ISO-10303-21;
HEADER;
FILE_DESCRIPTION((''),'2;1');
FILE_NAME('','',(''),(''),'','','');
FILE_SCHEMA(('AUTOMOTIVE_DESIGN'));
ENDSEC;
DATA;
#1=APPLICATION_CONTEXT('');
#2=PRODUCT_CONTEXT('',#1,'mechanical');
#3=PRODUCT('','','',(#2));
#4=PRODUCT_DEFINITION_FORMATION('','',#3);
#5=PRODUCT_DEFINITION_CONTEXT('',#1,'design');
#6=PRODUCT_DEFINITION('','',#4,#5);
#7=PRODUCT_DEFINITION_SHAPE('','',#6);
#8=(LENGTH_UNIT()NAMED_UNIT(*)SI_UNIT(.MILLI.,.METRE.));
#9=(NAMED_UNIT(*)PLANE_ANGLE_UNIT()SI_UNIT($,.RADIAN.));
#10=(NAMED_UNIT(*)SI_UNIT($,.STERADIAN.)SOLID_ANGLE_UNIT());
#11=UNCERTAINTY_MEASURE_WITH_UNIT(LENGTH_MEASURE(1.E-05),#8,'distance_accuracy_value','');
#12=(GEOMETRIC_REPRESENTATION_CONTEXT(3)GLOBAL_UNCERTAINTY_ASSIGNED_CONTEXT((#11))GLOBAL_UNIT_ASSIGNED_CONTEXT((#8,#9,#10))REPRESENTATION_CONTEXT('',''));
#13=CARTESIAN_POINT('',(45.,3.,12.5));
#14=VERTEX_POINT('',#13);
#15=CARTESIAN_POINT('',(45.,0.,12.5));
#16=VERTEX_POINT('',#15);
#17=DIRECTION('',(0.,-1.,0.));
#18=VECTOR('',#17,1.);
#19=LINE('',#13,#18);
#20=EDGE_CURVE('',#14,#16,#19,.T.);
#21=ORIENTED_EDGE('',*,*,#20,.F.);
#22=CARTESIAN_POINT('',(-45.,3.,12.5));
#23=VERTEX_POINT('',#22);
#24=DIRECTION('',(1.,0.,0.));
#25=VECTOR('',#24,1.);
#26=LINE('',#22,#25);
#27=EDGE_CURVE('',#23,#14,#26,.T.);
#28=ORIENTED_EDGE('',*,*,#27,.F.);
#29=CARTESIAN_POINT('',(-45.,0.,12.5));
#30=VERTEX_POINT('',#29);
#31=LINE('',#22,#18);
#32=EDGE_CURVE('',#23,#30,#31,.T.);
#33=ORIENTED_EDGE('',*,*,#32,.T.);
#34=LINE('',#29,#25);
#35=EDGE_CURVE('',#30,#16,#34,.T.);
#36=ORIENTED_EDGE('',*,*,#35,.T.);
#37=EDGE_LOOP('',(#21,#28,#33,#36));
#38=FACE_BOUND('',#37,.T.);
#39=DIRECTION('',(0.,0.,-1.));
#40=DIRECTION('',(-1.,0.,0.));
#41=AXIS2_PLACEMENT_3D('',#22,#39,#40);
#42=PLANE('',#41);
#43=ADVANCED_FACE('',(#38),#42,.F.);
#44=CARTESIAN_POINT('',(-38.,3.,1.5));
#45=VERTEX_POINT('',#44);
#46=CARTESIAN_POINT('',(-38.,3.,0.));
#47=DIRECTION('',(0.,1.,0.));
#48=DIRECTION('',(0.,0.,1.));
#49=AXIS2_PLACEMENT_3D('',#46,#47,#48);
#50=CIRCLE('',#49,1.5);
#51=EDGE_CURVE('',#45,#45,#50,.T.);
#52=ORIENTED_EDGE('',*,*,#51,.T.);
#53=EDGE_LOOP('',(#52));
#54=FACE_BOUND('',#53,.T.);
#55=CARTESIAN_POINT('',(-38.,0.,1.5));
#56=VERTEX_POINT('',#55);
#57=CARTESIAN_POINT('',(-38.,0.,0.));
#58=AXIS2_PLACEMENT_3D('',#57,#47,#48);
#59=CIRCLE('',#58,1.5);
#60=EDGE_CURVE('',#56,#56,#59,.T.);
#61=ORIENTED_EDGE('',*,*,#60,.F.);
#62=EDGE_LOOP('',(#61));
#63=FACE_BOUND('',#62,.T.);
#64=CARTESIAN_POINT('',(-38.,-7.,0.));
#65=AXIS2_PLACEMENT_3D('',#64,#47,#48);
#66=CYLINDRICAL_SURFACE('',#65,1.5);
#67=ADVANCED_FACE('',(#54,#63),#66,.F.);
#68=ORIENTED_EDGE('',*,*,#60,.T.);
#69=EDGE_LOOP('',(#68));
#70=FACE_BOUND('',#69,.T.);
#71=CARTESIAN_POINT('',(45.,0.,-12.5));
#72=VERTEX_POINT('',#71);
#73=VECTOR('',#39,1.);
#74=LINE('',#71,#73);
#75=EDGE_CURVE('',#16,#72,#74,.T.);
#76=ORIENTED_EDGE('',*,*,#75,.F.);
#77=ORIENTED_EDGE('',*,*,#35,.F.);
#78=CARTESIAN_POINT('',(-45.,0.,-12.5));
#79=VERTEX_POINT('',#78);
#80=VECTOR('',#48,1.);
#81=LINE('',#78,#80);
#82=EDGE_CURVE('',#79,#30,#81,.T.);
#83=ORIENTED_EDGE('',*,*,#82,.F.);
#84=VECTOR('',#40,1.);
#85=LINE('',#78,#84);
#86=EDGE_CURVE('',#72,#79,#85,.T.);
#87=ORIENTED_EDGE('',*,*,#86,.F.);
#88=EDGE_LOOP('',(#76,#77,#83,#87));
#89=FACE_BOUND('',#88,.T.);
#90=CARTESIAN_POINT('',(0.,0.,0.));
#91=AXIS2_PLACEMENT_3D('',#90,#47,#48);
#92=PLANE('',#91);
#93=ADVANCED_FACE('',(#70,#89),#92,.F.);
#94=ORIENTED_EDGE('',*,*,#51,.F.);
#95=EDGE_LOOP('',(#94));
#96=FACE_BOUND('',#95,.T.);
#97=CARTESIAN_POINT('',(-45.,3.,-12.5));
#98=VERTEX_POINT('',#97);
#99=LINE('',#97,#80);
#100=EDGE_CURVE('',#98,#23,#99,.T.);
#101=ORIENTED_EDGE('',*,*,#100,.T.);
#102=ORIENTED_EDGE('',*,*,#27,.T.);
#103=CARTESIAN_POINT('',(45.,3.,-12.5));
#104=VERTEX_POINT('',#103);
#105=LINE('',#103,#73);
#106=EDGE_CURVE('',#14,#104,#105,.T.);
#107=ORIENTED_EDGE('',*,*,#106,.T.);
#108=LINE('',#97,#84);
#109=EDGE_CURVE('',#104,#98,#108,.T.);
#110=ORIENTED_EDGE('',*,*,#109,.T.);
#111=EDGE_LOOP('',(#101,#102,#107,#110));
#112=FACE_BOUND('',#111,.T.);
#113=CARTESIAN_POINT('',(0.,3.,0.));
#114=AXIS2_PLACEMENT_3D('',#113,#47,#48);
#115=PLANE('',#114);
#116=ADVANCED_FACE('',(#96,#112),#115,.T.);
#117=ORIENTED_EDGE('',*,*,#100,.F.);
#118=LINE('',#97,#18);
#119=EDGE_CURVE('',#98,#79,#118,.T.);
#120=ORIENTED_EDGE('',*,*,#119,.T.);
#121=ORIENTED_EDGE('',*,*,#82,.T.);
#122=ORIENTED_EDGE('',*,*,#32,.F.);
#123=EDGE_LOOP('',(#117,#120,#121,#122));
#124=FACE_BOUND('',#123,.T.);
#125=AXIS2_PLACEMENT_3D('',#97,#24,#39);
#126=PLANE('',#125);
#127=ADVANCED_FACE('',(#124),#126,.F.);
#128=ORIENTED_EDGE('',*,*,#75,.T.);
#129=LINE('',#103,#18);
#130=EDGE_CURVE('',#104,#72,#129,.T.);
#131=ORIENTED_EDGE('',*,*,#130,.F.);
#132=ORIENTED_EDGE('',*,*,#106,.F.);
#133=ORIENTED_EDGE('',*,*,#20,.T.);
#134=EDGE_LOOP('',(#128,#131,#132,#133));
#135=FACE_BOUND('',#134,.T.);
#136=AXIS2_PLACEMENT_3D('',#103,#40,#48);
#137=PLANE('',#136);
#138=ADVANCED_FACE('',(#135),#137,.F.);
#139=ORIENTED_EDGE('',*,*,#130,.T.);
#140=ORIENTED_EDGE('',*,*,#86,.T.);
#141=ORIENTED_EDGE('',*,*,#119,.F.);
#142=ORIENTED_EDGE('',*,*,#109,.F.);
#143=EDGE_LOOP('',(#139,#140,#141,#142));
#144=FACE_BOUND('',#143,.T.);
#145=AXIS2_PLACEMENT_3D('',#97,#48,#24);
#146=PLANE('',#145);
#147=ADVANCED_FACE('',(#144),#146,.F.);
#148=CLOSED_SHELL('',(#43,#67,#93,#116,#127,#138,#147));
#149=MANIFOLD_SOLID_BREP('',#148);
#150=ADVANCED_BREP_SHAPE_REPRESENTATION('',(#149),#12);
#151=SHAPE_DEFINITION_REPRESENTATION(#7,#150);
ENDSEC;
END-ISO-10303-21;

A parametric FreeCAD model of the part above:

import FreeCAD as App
import Part
import Sketcher
Q = App.Units.Quantity

doc = App.newDocument("Part")
body = doc.addObject("PartDesign::Body", "Body")

# Sketch on XZ plane
sketch1 = body.newObject("Sketcher::SketchObject", "Sketch")
sketch1.AttachmentSupport = (doc.getObject("XZ_Plane"), [""])
sketch1.MapMode = "FlatFace"
sketch1.addGeometry([
    Part.LineSegment(App.Vector(-45, -12, 0), App.Vector(-45, 12, 0)),
    Part.LineSegment(App.Vector(-45, 12, 0), App.Vector(45, 12, 0)),
    Part.LineSegment(App.Vector(45, 12, 0), App.Vector(45, -12, 0)),
    Part.LineSegment(App.Vector(45, -12, 0), App.Vector(-45, -12, 0)),
], False)
sketch1.addConstraint([
    Sketcher.Constraint("Coincident", 0, 2, 1, 1),
    Sketcher.Constraint("Coincident", 1, 2, 2, 1),
    Sketcher.Constraint("Coincident", 2, 2, 3, 1),
    Sketcher.Constraint("Coincident", 3, 2, 0, 1),
    Sketcher.Constraint("Vertical", 0),
    Sketcher.Constraint("Horizontal", 1),
    Sketcher.Constraint("Vertical", 2),
    Sketcher.Constraint("Horizontal", 3),
    Sketcher.Constraint("Symmetric", 0, 2, 2, 2, -1, 1),
    Sketcher.Constraint("DistanceX", 1, 1, 1, 2, Q("90 mm")),
    Sketcher.Constraint("DistanceY", 0, 1, 0, 2, Q("25 mm")),
])
pad1 = body.newObject("PartDesign::Pad", "Pad")
pad1.Profile = sketch1
pad1.Length = 3
pad1.Reversed = True

# Sketch on XZ plane
sketch2 = body.newObject("Sketcher::SketchObject", "Sketch001")
sketch2.AttachmentSupport = (doc.getObject("XZ_Plane"), [""])
sketch2.MapMode = "FlatFace"
sketch2.AttachmentOffset = App.Placement(App.Vector(0, 0, -3), App.Rotation())
sketch2.addGeometry(Part.Circle(App.Vector(-38, 0, 0), App.Vector(0, 0, 1), 1.5), False)
sketch2.addConstraint([
    Sketcher.Constraint("PointOnObject", 0, 3, -1),
    Sketcher.Constraint("Diameter", 0, Q("3 mm")),
    Sketcher.Constraint("DistanceX", 0, 3, -1, 1, Q("38 mm")),
])
pocket1 = body.newObject("PartDesign::Pocket", "Pocket")
pocket1.Profile = sketch2
pocket1.Length = 10
pocket1.Reversed = True

doc.recompute()
